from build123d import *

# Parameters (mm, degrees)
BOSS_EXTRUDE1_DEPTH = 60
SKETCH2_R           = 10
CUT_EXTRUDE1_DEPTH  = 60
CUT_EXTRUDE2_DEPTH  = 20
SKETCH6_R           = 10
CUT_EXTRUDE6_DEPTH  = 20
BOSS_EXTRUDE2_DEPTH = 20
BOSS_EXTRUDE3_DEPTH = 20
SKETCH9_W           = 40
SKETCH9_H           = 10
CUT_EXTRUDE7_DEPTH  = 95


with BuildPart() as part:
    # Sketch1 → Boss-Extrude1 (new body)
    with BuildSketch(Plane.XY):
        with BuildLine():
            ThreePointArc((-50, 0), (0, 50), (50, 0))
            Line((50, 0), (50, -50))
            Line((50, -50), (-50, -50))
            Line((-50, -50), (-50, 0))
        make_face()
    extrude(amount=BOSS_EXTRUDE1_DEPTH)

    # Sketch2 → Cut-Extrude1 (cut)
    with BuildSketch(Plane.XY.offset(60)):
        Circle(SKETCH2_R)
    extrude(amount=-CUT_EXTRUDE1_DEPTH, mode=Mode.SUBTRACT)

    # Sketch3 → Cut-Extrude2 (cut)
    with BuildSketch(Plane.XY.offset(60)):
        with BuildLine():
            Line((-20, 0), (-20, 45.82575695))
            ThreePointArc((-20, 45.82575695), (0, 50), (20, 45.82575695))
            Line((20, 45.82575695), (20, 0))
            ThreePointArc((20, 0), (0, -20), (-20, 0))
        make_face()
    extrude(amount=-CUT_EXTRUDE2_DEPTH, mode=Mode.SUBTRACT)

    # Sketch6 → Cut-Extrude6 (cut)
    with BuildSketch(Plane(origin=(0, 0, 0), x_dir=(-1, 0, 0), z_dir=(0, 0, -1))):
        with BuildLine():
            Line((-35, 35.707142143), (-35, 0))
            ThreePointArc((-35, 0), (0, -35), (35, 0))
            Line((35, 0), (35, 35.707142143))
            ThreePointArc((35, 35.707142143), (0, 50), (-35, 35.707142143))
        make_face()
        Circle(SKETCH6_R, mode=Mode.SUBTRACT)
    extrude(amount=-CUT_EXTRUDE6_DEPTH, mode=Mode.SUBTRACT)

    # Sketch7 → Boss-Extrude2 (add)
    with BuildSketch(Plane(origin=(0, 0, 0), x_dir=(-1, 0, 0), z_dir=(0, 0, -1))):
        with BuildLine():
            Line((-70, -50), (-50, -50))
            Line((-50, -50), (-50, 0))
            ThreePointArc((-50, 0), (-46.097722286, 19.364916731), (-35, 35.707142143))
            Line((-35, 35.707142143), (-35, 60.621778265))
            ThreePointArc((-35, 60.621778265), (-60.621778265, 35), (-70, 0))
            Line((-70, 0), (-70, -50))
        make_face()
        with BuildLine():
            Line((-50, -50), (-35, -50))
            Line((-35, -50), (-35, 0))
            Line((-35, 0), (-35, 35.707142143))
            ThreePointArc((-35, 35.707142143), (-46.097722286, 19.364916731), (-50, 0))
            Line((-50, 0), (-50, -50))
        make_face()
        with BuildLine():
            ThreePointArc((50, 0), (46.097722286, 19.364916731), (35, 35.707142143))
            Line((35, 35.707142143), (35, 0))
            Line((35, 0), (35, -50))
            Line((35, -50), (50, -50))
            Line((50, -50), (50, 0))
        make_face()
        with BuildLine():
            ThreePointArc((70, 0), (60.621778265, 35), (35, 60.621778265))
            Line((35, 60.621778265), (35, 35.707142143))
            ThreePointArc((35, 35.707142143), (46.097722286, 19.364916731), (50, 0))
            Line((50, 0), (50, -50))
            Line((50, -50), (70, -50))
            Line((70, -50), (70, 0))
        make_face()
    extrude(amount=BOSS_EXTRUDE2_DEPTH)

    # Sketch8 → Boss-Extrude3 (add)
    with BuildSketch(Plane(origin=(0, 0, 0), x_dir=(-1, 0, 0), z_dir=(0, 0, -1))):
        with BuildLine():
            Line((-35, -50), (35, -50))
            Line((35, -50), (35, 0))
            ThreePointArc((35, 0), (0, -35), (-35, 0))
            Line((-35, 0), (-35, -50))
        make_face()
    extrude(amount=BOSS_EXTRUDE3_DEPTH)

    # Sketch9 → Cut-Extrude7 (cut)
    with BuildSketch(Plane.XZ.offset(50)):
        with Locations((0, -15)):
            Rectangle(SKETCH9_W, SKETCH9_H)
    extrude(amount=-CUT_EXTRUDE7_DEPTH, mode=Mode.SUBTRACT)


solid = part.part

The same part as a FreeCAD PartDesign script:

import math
import FreeCAD as App
import Part
import Sketcher
from FreeCAD import Vector
Q = App.Units.Quantity

doc = App.newDocument("Part")
body = doc.addObject("PartDesign::Body", "Body")

# Sketch on XY plane
sketch1 = doc.addObject("Sketcher::SketchObject", "Sketch")
body.addObject(sketch1)
sketch1.AttachmentSupport = (doc.XY_Plane, [""])
sketch1.MapMode = "FlatFace"
sketch1.addGeometry([
    Part.ArcOfCircle(Part.Circle(Vector(0, 0, 0), Vector(0, 0, 1), 50), math.radians(0), math.radians(180)),
    Part.LineSegment(Vector(-50, 0, 0), Vector(-50, -50, 0)),
    Part.LineSegment(Vector(-50, -50, 0), Vector(50, -50, 0)),
    Part.LineSegment(Vector(50, -50, 0), Vector(50, 0, 0)),
], False)
sketch1.addConstraint([
    Sketcher.Constraint("Tangent", 0, 2, 1, 1),
    Sketcher.Constraint("Coincident", 1, 2, 2, 1),
    Sketcher.Constraint("Coincident", 2, 2, 3, 1),
    Sketcher.Constraint("Tangent", 3, 2, 0, 1),
    Sketcher.Constraint("Vertical", 1),
    Sketcher.Constraint("Horizontal", 2),
    Sketcher.Constraint("Vertical", 3),
    Sketcher.Constraint("Coincident", 0, 3, -1, 1),
    Sketcher.Constraint("Radius", 0, Q("50 mm")),
    Sketcher.Constraint("DistanceY", 1, 2, 1, 1, Q("50 mm")),
])
pad1 = doc.addObject("PartDesign::Pad", "Pad")
body.addObject(pad1)
pad1.Profile = sketch1
pad1.Length = 60

# Sketch on XY plane
sketch2 = doc.addObject("Sketcher::SketchObject", "Sketch001")
body.addObject(sketch2)
sketch2.AttachmentSupport = (doc.XY_Plane, [""])
sketch2.MapMode = "FlatFace"
sketch2.AttachmentOffset = App.Placement(Vector(0, 0, 60), App.Rotation())
sketch2.addGeometry(Part.Circle(Vector(0, 0, 0), Vector(0, 0, 1), 10), False)
sketch2.addConstraint([
    Sketcher.Constraint("Coincident", 0, 3, -1, 1),
    Sketcher.Constraint("Diameter", 0, Q("20 mm")),
])
pocket1 = doc.addObject("PartDesign::Pocket", "Pocket")
body.addObject(pocket1)
pocket1.Profile = sketch2
pocket1.Length = 60

# Sketch on XY plane
sketch3 = doc.addObject("Sketcher::SketchObject", "Sketch002")
body.addObject(sketch3)
sketch3.AttachmentSupport = (doc.XY_Plane, [""])
sketch3.MapMode = "FlatFace"
sketch3.AttachmentOffset = App.Placement(Vector(0, 0, 60), App.Rotation())
sketch3.addGeometry([
    Part.LineSegment(Vector(-20, 46, 0), Vector(-20, 0, 0)),
    Part.ArcOfCircle(Part.Circle(Vector(0, 0, 0), Vector(0, 0, 1), 20), math.radians(180), math.radians(360)),
    Part.LineSegment(Vector(20, 0, 0), Vector(20, 46, 0)),
    Part.ArcOfCircle(Part.Circle(Vector(0, 0, 0), Vector(0, 0, 1), 50), math.radians(66), math.radians(114)),
], False)
sketch3.addConstraint([
    Sketcher.Constraint("Tangent", 0, 2, 1, 1),
    Sketcher.Constraint("Tangent", 1, 2, 2, 1),
    Sketcher.Constraint("Coincident", 2, 2, 3, 1),
    Sketcher.Constraint("Coincident", 3, 2, 0, 1),
    Sketcher.Constraint("Vertical", 0),
    Sketcher.Constraint("Vertical", 2),
    Sketcher.Constraint("Coincident", 1, 3, -1, 1),
    Sketcher.Constraint("Coincident", 3, 3, -1, 1),
    Sketcher.Constraint("Radius", 1, Q("20 mm")),
    Sketcher.Constraint("Radius", 3, Q("50 mm")),
])
pocket2 = doc.addObject("PartDesign::Pocket", "Pocket001")
body.addObject(pocket2)
pocket2.Profile = sketch3
pocket2.Length = 20

# Sketch on XY plane
sketch4 = doc.addObject("Sketcher::SketchObject", "Sketch003")
body.addObject(sketch4)
sketch4.AttachmentSupport = (doc.XY_Plane, [""])
sketch4.MapMode = "FlatFace"
sketch4.addGeometry([
    Part.LineSegment(Vector(35, 36, 0), Vector(35, 0, 0)),  # 0
    Part.ArcOfCircle(Part.Circle(Vector(0, 0, 0), Vector(0, 0, 1), 35), math.radians(180), math.radians(360)),  # 1
    Part.LineSegment(Vector(-35, 0, 0), Vector(-35, 36, 0)),  # 2
    Part.ArcOfCircle(Part.Circle(Vector(0, 0, 0), Vector(0, 0, 1), 50), math.radians(46), math.radians(134)),  # 3
    Part.Circle(Vector(0, 0, 0), Vector(0, 0, 1), 10),  # 4
], False)
sketch4.addConstraint([
    Sketcher.Constraint("Tangent", 0, 2, 1, 2),
    Sketcher.Constraint("Tangent", 1, 1, 2, 1),
    Sketcher.Constraint("Coincident", 2, 2, 3, 2),
    Sketcher.Constraint("Coincident", 3, 1, 0, 1),
    Sketcher.Constraint("Vertical", 0),
    Sketcher.Constraint("Vertical", 2),
    Sketcher.Constraint("Coincident", 1, 3, -1, 1),
    Sketcher.Constraint("Coincident", 3, 3, -1, 1),
    Sketcher.Constraint("Coincident", 4, 3, -1, 1),
    Sketcher.Constraint("Diameter", 4, Q("20 mm")),
    Sketcher.Constraint("Radius", 1, Q("35 mm")),
    Sketcher.Constraint("Radius", 3, Q("50 mm")),
])
pocket3 = doc.addObject("PartDesign::Pocket", "Pocket002")
body.addObject(pocket3)
pocket3.Profile = sketch4
pocket3.Length = 20
pocket3.Reversed = True

# Sketch on XY plane
sketch5 = doc.addObject("Sketcher::SketchObject", "Sketch004")
body.addObject(sketch5)
sketch5.AttachmentSupport = (doc.XY_Plane, [""])
sketch5.MapMode = "FlatFace"
sketch5.addGeometry([
    Part.LineSegment(Vector(70, -50, 0), Vector(35, -50, 0)),  # 0
    Part.LineSegment(Vector(35, -50, 0), Vector(35, 61, 0)),  # 1
    Part.ArcOfCircle(Part.Circle(Vector(0, 0, 0), Vector(0, 0, 1), 70), math.radians(0), math.radians(60)),  # 2
    Part.LineSegment(Vector(70, 0, 0), Vector(70, -50, 0)),  # 3
    Part.LineSegment(Vector(-35, -50, 0), Vector(-70, -50, 0)),  # 4
    Part.LineSegment(Vector(-70, -50, 0), Vector(-70, 0, 0)),  # 5
    Part.ArcOfCircle(Part.Circle(Vector(0, 0, 0), Vector(0, 0, 1), 70), math.radians(120), math.radians(180)),  # 6
    Part.LineSegment(Vector(-35, 61, 0), Vector(-35, -50, 0)),  # 7
], False)
sketch5.addConstraint([
    Sketcher.Constraint("Coincident", 0, 2, 1, 1),
    Sketcher.Constraint("Coincident", 1, 2, 2, 2),
    Sketcher.Constraint("Tangent", 2, 1, 3, 1),
    Sketcher.Constraint("Coincident", 3, 2, 0, 1),
    Sketcher.Constraint("Coincident", 4, 2, 5, 1),
    Sketcher.Constraint("Tangent", 5, 2, 6, 2),
    Sketcher.Constraint("Coincident", 6, 1, 7, 1),
    Sketcher.Constraint("Coincident", 7, 2, 4, 1),
    Sketcher.Constraint("Horizontal", 0),
    Sketcher.Constraint("Vertical", 1),
    Sketcher.Constraint("Vertical", 3),
    Sketcher.Constraint("Horizontal", 4),
    Sketcher.Constraint("Vertical", 5),
    Sketcher.Constraint("Vertical", 7),
    Sketcher.Constraint("Coincident", 2, 3, -1, 1),
    Sketcher.Constraint("Coincident", 6, 3, -1, 1),
    Sketcher.Constraint("Equal", 2, 6),
    Sketcher.Constraint("Symmetric", 0, 2, 7, 2, -2),
    Sketcher.Constraint("Radius", 2, Q("70 mm")),
    Sketcher.Constraint("DistanceX", 0, 2, 0, 1, Q("35 mm")),
    Sketcher.Constraint("DistanceY", 3, 2, 3, 1, Q("50 mm")),
])
pad2 = doc.addObject("PartDesign::Pad", "Pad001")
body.addObject(pad2)
pad2.Profile = sketch5
pad2.Length = 20
pad2.Reversed = True

# Sketch on XY plane
sketch6 = doc.addObject("Sketcher::SketchObject", "Sketch005")
body.addObject(sketch6)
sketch6.AttachmentSupport = (doc.XY_Plane, [""])
sketch6.MapMode = "FlatFace"
sketch6.addGeometry([
    Part.LineSegment(Vector(35, -50, 0), Vector(-35, -50, 0)),
    Part.LineSegment(Vector(-35, -50, 0), Vector(-35, 0, 0)),
    Part.ArcOfCircle(Part.Circle(Vector(0, 0, 0), Vector(0, 0, 1), 35), math.radians(180), math.radians(360)),
    Part.LineSegment(Vector(35, 0, 0), Vector(35, -50, 0)),
], False)
sketch6.addConstraint([
    Sketcher.Constraint("Coincident", 0, 2, 1, 1),
    Sketcher.Constraint("Tangent", 1, 2, 2, 1),
    Sketcher.Constraint("Tangent", 2, 2, 3, 1),
    Sketcher.Constraint("Coincident", 3, 2, 0, 1),
    Sketcher.Constraint("Horizontal", 0),
    Sketcher.Constraint("Vertical", 1),
    Sketcher.Constraint("Vertical", 3),
    Sketcher.Constraint("Coincident", 2, 3, -1, 1),
    Sketcher.Constraint("Radius", 2, Q("35 mm")),
    Sketcher.Constraint("DistanceY", 1, 1, 1, 2, Q("50 mm")),
])
pad3 = doc.addObject("PartDesign::Pad", "Pad002")
body.addObject(pad3)
pad3.Profile = sketch6
pad3.Length = 20
pad3.Reversed = True

# Sketch on XZ plane
sketch7 = doc.addObject("Sketcher::SketchObject", "Sketch006")
body.addObject(sketch7)
sketch7.AttachmentSupport = (doc.XZ_Plane, [""])
sketch7.MapMode = "FlatFace"
sketch7.AttachmentOffset = App.Placement(Vector(0, 0, 50), App.Rotation())
sketch7.addGeometry([
    Part.LineSegment(Vector(-20, -10, 0), Vector(-20, -20, 0)),
    Part.LineSegment(Vector(-20, -20, 0), Vector(20, -20, 0)),
    Part.LineSegment(Vector(20, -20, 0), Vector(20, -10, 0)),
    Part.LineSegment(Vector(20, -10, 0), Vector(-20, -10, 0)),
], False)
sketch7.addConstraint([
    Sketcher.Constraint("Coincident", 0, 2, 1, 1),
    Sketcher.Constraint("Coincident", 1, 2, 2, 1),
    Sketcher.Constraint("Coincident", 2, 2, 3, 1),
    Sketcher.Constraint("Coincident", 3, 2, 0, 1),
    Sketcher.Constraint("Vertical", 0),
    Sketcher.Constraint("Horizontal", 1),
    Sketcher.Constraint("Vertical", 2),
    Sketcher.Constraint("Horizontal", 3),
    Sketcher.Constraint("DistanceX", 1, 1, 1, 2, Q("40 mm")),
    Sketcher.Constraint("DistanceY", 0, 2, 0, 1, Q("10 mm")),
    Sketcher.Constraint("DistanceX", 0, 2, -1, 1, Q("20 mm")),
    Sketcher.Constraint("DistanceY", 0, 2, -1, 1, Q("20 mm")),
])
pocket4 = doc.addObject("PartDesign::Pocket", "Pocket003")
body.addObject(pocket4)
pocket4.Profile = sketch7
pocket4.Length = 95

doc.recompute()
